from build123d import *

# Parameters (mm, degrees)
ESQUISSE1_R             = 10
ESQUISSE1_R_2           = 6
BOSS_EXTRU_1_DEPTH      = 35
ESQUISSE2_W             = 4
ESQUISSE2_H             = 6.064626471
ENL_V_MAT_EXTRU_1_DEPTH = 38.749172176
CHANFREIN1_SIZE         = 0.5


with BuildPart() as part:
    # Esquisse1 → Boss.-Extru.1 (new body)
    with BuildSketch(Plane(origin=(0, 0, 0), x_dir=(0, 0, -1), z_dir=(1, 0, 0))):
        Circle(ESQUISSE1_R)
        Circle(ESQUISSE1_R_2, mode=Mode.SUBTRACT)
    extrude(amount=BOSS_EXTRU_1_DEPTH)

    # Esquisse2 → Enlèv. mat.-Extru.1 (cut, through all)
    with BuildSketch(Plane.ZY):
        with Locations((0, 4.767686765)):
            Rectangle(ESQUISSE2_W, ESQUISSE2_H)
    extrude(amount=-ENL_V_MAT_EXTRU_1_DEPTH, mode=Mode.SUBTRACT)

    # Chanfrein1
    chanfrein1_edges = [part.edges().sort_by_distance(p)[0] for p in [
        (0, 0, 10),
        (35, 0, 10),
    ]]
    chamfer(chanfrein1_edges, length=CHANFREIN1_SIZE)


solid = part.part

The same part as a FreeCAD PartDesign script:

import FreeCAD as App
import Part
import Sketcher
Q = App.Units.Quantity


def edges_at(feature, points):
    """Names of the edges that pass closest to the given points."""
    edges = feature.Shape.Edges
    near = lambda p: min(range(len(edges)), key=lambda i: edges[i].distToShape(Part.Vertex(*p))[0])
    return sorted({f"Edge{near(p) + 1}" for p in points})

doc = App.newDocument("Part")
body = doc.addObject("PartDesign::Body", "Body")

sketch1 = body.newObject("Sketcher::SketchObject", "Sketch")
sketch1.AttachmentSupport = (doc.getObject("YZ_Plane"), [""])
sketch1.MapMode = "FlatFace"
sketch1.addGeometry(Part.Circle(App.Vector(0, 0, 0), App.Vector(0, 0, 1), 10), False)
sketch1.addGeometry(Part.Circle(App.Vector(0, 0, 0), App.Vector(0, 0, 1), 6), False)
sketch1.addConstraint(Sketcher.Constraint("Coincident", 0, 3, -1, 1))
sketch1.addConstraint(Sketcher.Constraint("Coincident", 1, 3, -1, 1))
sketch1.addConstraint(Sketcher.Constraint("Diameter", 0, Q("20 mm")))
sketch1.addConstraint(Sketcher.Constraint("Diameter", 1, Q("12 mm")))
pad1 = body.newObject("PartDesign::Pad", "Pad")
pad1.Profile = sketch1
pad1.Length = 35

sketch2 = body.newObject("Sketcher::SketchObject", "Sketch001")
sketch2.AttachmentSupport = (doc.getObject("YZ_Plane"), [""])
sketch2.MapMode = "FlatFace"
sketch2.addGeometry(Part.LineSegment(App.Vector(7.8, -2, 0), App.Vector(1.7, -2, 0)), False)
sketch2.addGeometry(Part.LineSegment(App.Vector(1.7, -2, 0), App.Vector(1.7, 2, 0)), False)
sketch2.addGeometry(Part.LineSegment(App.Vector(1.7, 2, 0), App.Vector(7.8, 2, 0)), False)
sketch2.addGeometry(Part.LineSegment(App.Vector(7.8, 2, 0), App.Vector(7.8, -2, 0)), False)
sketch2.addConstraint(Sketcher.Constraint("Coincident", 0, 2, 1, 1))
sketch2.addConstraint(Sketcher.Constraint("Coincident", 1, 2, 2, 1))
sketch2.addConstraint(Sketcher.Constraint("Coincident", 2, 2, 3, 1))
sketch2.addConstraint(Sketcher.Constraint("Coincident", 3, 2, 0, 1))
sketch2.addConstraint(Sketcher.Constraint("Horizontal", 0))
sketch2.addConstraint(Sketcher.Constraint("Vertical", 1))
sketch2.addConstraint(Sketcher.Constraint("Horizontal", 2))
sketch2.addConstraint(Sketcher.Constraint("Vertical", 3))
sketch2.addConstraint(Sketcher.Constraint("DistanceY", 1, 1, 1, 2, Q("4 mm")))
sketch2.addConstraint(Sketcher.Constraint("DistanceY", 0, 2, -1, 1, Q("2 mm")))
sketch2.addConstraint(Sketcher.Constraint("DistanceX", -1, 1, 2, 2, Q("7.8 mm")))
sketch2.addConstraint(Sketcher.Constraint("DistanceX", 0, 2, 0, 1, Q("6.064626 mm")))
pocket1 = body.newObject("PartDesign::Pocket", "Pocket")
pocket1.Profile = sketch2
pocket1.Type = "ThroughAll"
pocket1.Reversed = True
doc.recompute()

chamfer = body.newObject("PartDesign::Chamfer", "Chamfer")
chamfer.Base = (pocket1, edges_at(pocket1, [(0, 0, 10), (35, 0, 10)]))
chamfer.Size = 0.5

doc.recompute()
